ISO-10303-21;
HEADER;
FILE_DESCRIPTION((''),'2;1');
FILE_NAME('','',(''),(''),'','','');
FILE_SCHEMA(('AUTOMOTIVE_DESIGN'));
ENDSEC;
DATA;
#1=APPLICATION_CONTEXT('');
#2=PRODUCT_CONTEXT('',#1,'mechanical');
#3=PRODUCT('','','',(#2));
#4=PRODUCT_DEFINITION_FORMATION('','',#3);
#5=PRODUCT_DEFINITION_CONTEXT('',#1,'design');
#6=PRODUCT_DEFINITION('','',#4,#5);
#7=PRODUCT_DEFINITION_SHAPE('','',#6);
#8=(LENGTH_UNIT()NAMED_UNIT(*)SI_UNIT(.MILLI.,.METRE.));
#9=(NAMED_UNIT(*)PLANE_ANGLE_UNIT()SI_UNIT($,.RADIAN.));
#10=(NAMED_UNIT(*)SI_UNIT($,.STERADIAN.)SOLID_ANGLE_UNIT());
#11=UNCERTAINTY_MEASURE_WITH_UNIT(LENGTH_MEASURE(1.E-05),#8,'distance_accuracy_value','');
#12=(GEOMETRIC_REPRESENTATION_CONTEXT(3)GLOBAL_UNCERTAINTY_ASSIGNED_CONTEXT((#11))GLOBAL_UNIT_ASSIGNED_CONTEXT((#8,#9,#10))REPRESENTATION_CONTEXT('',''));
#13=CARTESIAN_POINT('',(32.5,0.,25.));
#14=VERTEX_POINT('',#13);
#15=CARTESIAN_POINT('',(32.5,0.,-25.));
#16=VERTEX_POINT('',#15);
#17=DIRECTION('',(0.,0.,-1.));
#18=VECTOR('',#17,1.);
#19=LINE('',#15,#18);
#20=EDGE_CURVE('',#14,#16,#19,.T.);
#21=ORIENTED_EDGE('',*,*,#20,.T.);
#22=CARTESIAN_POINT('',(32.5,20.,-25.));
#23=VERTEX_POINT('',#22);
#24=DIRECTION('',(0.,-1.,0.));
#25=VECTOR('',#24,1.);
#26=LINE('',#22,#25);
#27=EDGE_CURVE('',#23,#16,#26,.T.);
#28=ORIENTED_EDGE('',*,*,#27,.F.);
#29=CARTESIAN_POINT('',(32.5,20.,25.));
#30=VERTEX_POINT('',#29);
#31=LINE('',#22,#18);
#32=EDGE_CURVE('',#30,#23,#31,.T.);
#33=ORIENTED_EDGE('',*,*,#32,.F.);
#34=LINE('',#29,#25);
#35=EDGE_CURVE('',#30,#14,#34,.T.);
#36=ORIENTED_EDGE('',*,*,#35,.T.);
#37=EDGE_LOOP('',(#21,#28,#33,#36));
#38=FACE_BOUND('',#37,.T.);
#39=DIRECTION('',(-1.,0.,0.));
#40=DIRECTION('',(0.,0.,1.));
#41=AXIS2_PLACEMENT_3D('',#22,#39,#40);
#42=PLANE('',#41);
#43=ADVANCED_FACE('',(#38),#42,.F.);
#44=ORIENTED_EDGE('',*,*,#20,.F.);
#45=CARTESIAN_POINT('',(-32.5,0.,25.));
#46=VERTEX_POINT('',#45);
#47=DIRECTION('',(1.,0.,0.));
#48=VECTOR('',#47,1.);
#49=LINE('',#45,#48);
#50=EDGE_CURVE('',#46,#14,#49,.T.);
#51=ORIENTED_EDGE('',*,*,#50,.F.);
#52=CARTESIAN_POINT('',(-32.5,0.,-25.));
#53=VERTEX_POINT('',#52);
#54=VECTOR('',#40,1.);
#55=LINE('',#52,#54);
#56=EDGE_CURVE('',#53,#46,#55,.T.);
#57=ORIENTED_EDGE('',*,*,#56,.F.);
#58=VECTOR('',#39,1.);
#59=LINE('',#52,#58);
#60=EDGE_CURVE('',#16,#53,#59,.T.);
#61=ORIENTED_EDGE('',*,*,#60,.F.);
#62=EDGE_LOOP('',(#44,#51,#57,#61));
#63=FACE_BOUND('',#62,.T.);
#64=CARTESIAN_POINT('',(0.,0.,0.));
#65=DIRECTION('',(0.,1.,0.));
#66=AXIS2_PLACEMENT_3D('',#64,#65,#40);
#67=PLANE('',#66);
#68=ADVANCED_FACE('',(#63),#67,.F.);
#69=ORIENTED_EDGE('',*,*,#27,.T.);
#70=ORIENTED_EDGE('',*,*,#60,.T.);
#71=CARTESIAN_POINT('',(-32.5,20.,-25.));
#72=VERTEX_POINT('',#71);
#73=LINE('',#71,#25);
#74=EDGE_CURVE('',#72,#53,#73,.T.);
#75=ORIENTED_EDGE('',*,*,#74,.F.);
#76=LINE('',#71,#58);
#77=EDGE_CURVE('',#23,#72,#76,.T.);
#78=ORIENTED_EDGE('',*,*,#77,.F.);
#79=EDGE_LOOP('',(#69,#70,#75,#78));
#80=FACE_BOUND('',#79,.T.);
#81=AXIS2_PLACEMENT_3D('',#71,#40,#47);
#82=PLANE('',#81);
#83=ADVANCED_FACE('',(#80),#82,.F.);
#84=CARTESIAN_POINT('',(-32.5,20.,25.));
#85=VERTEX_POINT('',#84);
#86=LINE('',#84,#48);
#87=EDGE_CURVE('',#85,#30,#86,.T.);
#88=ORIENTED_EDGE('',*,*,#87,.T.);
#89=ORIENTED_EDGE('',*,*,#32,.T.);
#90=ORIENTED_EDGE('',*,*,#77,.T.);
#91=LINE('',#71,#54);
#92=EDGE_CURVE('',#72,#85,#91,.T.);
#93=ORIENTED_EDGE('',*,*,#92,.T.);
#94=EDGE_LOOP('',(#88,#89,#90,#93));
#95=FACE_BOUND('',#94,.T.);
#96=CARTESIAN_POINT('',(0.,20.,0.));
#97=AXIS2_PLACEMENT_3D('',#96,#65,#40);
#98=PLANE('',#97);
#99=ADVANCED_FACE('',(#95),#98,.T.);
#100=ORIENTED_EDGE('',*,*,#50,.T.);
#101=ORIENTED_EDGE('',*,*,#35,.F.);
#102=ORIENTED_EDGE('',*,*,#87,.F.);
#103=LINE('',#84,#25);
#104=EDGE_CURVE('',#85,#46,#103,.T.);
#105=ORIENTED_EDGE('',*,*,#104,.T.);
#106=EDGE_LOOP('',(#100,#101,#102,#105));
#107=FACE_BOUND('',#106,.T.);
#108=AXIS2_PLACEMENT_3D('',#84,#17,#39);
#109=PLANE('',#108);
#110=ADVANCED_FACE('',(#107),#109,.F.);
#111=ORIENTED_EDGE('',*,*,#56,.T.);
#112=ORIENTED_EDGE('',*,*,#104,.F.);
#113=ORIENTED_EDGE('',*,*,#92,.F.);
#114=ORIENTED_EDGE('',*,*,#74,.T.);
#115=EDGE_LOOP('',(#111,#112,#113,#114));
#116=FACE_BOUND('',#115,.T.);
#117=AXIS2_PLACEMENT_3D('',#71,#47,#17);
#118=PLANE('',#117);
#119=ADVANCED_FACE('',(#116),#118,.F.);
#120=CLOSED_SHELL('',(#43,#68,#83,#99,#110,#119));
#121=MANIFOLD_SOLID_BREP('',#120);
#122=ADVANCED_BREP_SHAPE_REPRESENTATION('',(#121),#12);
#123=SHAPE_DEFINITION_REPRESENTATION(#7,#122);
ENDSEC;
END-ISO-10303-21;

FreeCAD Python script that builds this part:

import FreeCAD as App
import Part
import Sketcher
from FreeCAD import Vector


def add_polygon(sketch, points):
    """Adds a closed chain of lines whose ends are joined by coincident constraints."""
    first, n = sketch.GeometryCount, len(points)
    for a, b in zip(points, points[1:] + points[:1]):
        sketch.addGeometry(Part.LineSegment(App.Vector(*a, 0), App.Vector(*b, 0)), False)
    for i in range(n):
        sketch.addConstraint(Sketcher.Constraint("Coincident", first + i, 2, first + (i + 1) % n, 1))

doc = App.newDocument("Part")
params = doc.addObject("Spreadsheet::Sheet", "Params")
for row, (alias, value) in enumerate([
    ("sketch1_width", "65 mm"),
    ("sketch1_height", "50 mm"),
    ("pad1_length", "20 mm"),
], start=1):
    params.set(f"A{row}", alias)
    params.set(f"B{row}", "=" + value)
    params.setAlias(f"B{row}", alias)

body = doc.addObject("PartDesign::Body", "Body")

sketch1 = body.newObject("Sketcher::SketchObject", "Sketch")
sketch1.AttachmentSupport = (doc.getObject("XZ_Plane"), [""])
sketch1.MapMode = "FlatFace"
add_polygon(sketch1, [(-32, -25), (-32, 25), (32, 25), (32, -25)])
sketch1.addConstraint([
    Sketcher.Constraint("Vertical", 0),
    Sketcher.Constraint("Horizontal", 1),
    Sketcher.Constraint("Vertical", 2),
    Sketcher.Constraint("Horizontal", 3),
    Sketcher.Constraint("Symmetric", 0, 2, 2, 2, -1, 1),
    Sketcher.Constraint("DistanceX", 1, 1, 1, 2, 65.0),
    Sketcher.Constraint("DistanceY", 0, 1, 0, 2, 50.0),
])
sketch1.setExpression("Constraints[9]", "Params.sketch1_width")
sketch1.setExpression("Constraints[10]", "Params.sketch1_height")
pad1 = body.newObject("PartDesign::Pad", "Pad")
pad1.Profile = sketch1
pad1.setExpression("Length", "Params.pad1_length")
pad1.Reversed = True

doc.recompute()
